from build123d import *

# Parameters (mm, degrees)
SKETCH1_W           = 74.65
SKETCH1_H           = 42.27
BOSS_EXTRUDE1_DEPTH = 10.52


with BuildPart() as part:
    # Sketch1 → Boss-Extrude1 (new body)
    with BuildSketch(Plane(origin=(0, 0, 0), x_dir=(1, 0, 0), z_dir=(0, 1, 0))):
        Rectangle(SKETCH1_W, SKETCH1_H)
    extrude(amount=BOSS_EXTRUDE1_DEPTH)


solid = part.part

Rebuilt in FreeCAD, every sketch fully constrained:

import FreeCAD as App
import Part
import Sketcher
from FreeCAD import Vector


def add_polygon(sketch, points):
    """Adds a closed chain of lines whose ends are joined by coincident constraints."""
    first, n = sketch.GeometryCount, len(points)
    for a, b in zip(points, points[1:] + points[:1]):
        sketch.addGeometry(Part.LineSegment(App.Vector(*a, 0), App.Vector(*b, 0)), False)
    for i in range(n):
        sketch.addConstraint(Sketcher.Constraint("Coincident", first + i, 2, first + (i + 1) % n, 1))

doc = App.newDocument("Part")
params = doc.addObject("Spreadsheet::Sheet", "Params")
for row, (alias, value) in enumerate([
    ("sketch1_width", "74.65 mm"),
    ("sketch1_height", "42.27 mm"),
    ("pad1_length", "10.52 mm"),
], start=1):
    params.set(f"A{row}", alias)
    params.set(f"B{row}", "=" + value)
    params.setAlias(f"B{row}", alias)

body = doc.addObject("PartDesign::Body", "Body")

sketch1 = doc.addObject("Sketcher::SketchObject", "Sketch")
body.addObject(sketch1)
sketch1.AttachmentSupport = (doc.XZ_Plane, [""])
sketch1.MapMode = "FlatFace"
add_polygon(sketch1, [(-37, -21), (-37, 21), (37, 21), (37, -21)])
sketch1.addConstraint(Sketcher.Constraint("Vertical", 0))
sketch1.addConstraint(Sketcher.Constraint("Horizontal", 1))
sketch1.addConstraint(Sketcher.Constraint("Vertical", 2))
sketch1.addConstraint(Sketcher.Constraint("Horizontal", 3))
sketch1.addConstraint(Sketcher.Constraint("Symmetric", 0, 2, 2, 2, -1, 1))
sketch1.addConstraint(Sketcher.Constraint("DistanceX", 1, 1, 1, 2, 74.65))
sketch1.addConstraint(Sketcher.Constraint("DistanceY", 0, 1, 0, 2, 42.27))
sketch1.setExpression("Constraints[9]", "Params.sketch1_width")
sketch1.setExpression("Constraints[10]", "Params.sketch1_height")
pad1 = doc.addObject("PartDesign::Pad", "Pad")
body.addObject(pad1)
pad1.Profile = sketch1
pad1.setExpression("Length", "Params.pad1_length")
pad1.Reversed = True

doc.recompute()
